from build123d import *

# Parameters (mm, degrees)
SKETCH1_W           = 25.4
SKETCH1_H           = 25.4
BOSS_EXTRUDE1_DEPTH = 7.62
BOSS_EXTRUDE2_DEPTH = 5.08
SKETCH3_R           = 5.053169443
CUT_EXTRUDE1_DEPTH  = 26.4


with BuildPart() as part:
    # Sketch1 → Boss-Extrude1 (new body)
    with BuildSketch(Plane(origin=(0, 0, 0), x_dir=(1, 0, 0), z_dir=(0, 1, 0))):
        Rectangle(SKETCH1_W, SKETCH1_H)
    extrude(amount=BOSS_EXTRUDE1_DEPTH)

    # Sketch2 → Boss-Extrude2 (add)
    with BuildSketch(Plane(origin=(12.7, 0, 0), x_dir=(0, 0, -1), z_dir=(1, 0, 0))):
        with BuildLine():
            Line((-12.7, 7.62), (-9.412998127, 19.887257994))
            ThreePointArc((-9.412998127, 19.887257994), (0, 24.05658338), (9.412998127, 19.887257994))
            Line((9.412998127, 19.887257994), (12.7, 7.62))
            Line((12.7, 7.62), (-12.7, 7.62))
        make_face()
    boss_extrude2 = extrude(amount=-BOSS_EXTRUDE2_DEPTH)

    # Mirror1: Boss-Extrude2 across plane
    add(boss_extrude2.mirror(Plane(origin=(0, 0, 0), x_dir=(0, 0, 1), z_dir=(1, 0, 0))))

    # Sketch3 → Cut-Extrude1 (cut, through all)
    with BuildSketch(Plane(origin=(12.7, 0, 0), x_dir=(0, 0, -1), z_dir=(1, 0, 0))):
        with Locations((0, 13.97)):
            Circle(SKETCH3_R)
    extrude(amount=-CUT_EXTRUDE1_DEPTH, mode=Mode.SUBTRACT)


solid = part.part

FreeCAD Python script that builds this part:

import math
import FreeCAD as App
import Part
import Sketcher
Q = App.Units.Quantity


def add_polygon(sketch, points):
    """Adds a closed chain of lines whose ends are joined by coincident constraints."""
    first, n = sketch.GeometryCount, len(points)
    for a, b in zip(points, points[1:] + points[:1]):
        sketch.addGeometry(Part.LineSegment(App.Vector(*a, 0), App.Vector(*b, 0)), False)
    for i in range(n):
        sketch.addConstraint(Sketcher.Constraint("Coincident", first + i, 2, first + (i + 1) % n, 1))

doc = App.newDocument("Part")
body = doc.addObject("PartDesign::Body", "Body")

sketch1 = body.newObject("Sketcher::SketchObject", "Sketch")
sketch1.AttachmentSupport = (doc.getObject("XZ_Plane"), [""])
sketch1.MapMode = "FlatFace"
add_polygon(sketch1, [(-13, -13), (-13, 13), (13, 13), (13, -13)])
sketch1.addConstraint(Sketcher.Constraint("Vertical", 0))
sketch1.addConstraint(Sketcher.Constraint("Horizontal", 1))
sketch1.addConstraint(Sketcher.Constraint("Vertical", 2))
sketch1.addConstraint(Sketcher.Constraint("Horizontal", 3))
sketch1.addConstraint(Sketcher.Constraint("Symmetric", 0, 2, 2, 2, -1, 1))
sketch1.addConstraint(Sketcher.Constraint("Equal", 3, 0))
sketch1.addConstraint(Sketcher.Constraint("DistanceX", 1, 1, 1, 2, Q("1 in")))
pad1 = body.newObject("PartDesign::Pad", "Pad")
pad1.Profile = sketch1
pad1.Length = Q("0.3 in")
pad1.Reversed = True

sketch2 = body.newObject("Sketcher::SketchObject", "Sketch001")
sketch2.AttachmentSupport = (doc.getObject("YZ_Plane"), [""])
sketch2.MapMode = "FlatFace"
sketch2.AttachmentOffset = App.Placement(App.Vector(0, 0, 0.5 * 25.4), App.Rotation())
sketch2.addGeometry(Part.LineSegment(App.Vector(20, 9, 0), App.Vector(8, 13, 0)), False)
sketch2.addGeometry(Part.LineSegment(App.Vector(8, 13, 0), App.Vector(8, -13, 0)), False)
sketch2.addGeometry(Part.LineSegment(App.Vector(8, -13, 0), App.Vector(20, -9, 0)), False)
sketch2.addGeometry(Part.ArcOfCircle(Part.Circle(App.Vector(11, 0, 0), App.Vector(0, 0, 1), 13), math.radians(-48), math.radians(48)), False)
sketch2.addConstraint(Sketcher.Constraint("Coincident", 0, 2, 1, 1))
sketch2.addConstraint(Sketcher.Constraint("Coincident", 1, 2, 2, 1))
sketch2.addConstraint(Sketcher.Constraint("Coincident", 2, 2, 3, 1))
sketch2.addConstraint(Sketcher.Constraint("Coincident", 3, 2, 0, 1))
sketch2.addConstraint(Sketcher.Constraint("Vertical", 1))
sketch2.addConstraint(Sketcher.Constraint("Symmetric", 2, 2, 3, 2, -1))
sketch2.addConstraint(Sketcher.Constraint("Equal", 0, 2))
sketch2.addConstraint(Sketcher.Constraint("DistanceY", 1, 2, 1, 1, Q("1 in")))
sketch2.addConstraint(Sketcher.Constraint("Angle", 0, Q("165 deg")))
sketch2.addConstraint(Sketcher.Constraint("Distance", 0, Q("0.5 in")))
sketch2.addConstraint(Sketcher.Constraint("DistanceX", -1, 1, 0, 2, Q("0.3 in")))
sketch2.addConstraint(Sketcher.Constraint("Radius", 3, 12.710427))
pad2 = body.newObject("PartDesign::Pad", "Pad001")
pad2.Profile = sketch2
pad2.Length = Q("0.2 in")
pad2.Reversed = True
doc.recompute()

mirrored = body.newObject("PartDesign::Mirrored", "Mirrored")
mirrored.Originals = [pad2]
mirrored.MirrorPlane = (doc.getObject("YZ_Plane"), [""])
body.Tip = mirrored

sketch3 = body.newObject("Sketcher::SketchObject", "Sketch002")
sketch3.AttachmentSupport = (doc.getObject("YZ_Plane"), [""])
sketch3.MapMode = "FlatFace"
sketch3.AttachmentOffset = App.Placement(App.Vector(0, 0, 0.5 * 25.4), App.Rotation())
sketch3.addGeometry(Part.Circle(App.Vector(14, 0, 0), App.Vector(0, 0, 1), 5), False)
sketch3.addConstraint(Sketcher.Constraint("PointOnObject", 0, 3, -1))
sketch3.addConstraint(Sketcher.Constraint("DistanceX", -1, 1, 0, 3, Q("0.55 in")))
sketch3.addConstraint(Sketcher.Constraint("Diameter", 0, 10.106339))
pocket1 = body.newObject("PartDesign::Pocket", "Pocket")
pocket1.Profile = sketch3
pocket1.Type = "ThroughAll"

doc.recompute()
